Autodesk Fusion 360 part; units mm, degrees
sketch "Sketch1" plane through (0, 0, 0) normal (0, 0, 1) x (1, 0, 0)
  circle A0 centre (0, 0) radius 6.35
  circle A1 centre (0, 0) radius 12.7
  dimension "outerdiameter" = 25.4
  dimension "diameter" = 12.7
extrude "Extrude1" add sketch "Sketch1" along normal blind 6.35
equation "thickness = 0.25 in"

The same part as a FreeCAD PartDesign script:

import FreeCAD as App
import Part
import Sketcher
from FreeCAD import Vector
Q = App.Units.Quantity

doc = App.newDocument("Part")
body = doc.addObject("PartDesign::Body", "Body")

# Sketch on XY plane
sketch1 = body.newObject("Sketcher::SketchObject", "Sketch")
sketch1.AttachmentSupport = (doc.getObject("XY_Plane"), [""])
sketch1.MapMode = "FlatFace"
sketch1.addGeometry(Part.Circle(Vector(0, 0, 0), Vector(0, 0, 1), 13), False)
sketch1.addGeometry(Part.Circle(Vector(0, 0, 0), Vector(0, 0, 1), 6), False)
sketch1.addConstraint(Sketcher.Constraint("Coincident", 0, 3, -1, 1))
sketch1.addConstraint(Sketcher.Constraint("Coincident", 1, 3, -1, 1))
sketch1.addConstraint(Sketcher.Constraint("Diameter", 0, Q("1 in")))
sketch1.addConstraint(Sketcher.Constraint("Diameter", 1, Q("0.5 in")))
pad1 = body.newObject("PartDesign::Pad", "Pad")
pad1.Profile = sketch1
pad1.Length = Q("0.25 in")

doc.recompute()
